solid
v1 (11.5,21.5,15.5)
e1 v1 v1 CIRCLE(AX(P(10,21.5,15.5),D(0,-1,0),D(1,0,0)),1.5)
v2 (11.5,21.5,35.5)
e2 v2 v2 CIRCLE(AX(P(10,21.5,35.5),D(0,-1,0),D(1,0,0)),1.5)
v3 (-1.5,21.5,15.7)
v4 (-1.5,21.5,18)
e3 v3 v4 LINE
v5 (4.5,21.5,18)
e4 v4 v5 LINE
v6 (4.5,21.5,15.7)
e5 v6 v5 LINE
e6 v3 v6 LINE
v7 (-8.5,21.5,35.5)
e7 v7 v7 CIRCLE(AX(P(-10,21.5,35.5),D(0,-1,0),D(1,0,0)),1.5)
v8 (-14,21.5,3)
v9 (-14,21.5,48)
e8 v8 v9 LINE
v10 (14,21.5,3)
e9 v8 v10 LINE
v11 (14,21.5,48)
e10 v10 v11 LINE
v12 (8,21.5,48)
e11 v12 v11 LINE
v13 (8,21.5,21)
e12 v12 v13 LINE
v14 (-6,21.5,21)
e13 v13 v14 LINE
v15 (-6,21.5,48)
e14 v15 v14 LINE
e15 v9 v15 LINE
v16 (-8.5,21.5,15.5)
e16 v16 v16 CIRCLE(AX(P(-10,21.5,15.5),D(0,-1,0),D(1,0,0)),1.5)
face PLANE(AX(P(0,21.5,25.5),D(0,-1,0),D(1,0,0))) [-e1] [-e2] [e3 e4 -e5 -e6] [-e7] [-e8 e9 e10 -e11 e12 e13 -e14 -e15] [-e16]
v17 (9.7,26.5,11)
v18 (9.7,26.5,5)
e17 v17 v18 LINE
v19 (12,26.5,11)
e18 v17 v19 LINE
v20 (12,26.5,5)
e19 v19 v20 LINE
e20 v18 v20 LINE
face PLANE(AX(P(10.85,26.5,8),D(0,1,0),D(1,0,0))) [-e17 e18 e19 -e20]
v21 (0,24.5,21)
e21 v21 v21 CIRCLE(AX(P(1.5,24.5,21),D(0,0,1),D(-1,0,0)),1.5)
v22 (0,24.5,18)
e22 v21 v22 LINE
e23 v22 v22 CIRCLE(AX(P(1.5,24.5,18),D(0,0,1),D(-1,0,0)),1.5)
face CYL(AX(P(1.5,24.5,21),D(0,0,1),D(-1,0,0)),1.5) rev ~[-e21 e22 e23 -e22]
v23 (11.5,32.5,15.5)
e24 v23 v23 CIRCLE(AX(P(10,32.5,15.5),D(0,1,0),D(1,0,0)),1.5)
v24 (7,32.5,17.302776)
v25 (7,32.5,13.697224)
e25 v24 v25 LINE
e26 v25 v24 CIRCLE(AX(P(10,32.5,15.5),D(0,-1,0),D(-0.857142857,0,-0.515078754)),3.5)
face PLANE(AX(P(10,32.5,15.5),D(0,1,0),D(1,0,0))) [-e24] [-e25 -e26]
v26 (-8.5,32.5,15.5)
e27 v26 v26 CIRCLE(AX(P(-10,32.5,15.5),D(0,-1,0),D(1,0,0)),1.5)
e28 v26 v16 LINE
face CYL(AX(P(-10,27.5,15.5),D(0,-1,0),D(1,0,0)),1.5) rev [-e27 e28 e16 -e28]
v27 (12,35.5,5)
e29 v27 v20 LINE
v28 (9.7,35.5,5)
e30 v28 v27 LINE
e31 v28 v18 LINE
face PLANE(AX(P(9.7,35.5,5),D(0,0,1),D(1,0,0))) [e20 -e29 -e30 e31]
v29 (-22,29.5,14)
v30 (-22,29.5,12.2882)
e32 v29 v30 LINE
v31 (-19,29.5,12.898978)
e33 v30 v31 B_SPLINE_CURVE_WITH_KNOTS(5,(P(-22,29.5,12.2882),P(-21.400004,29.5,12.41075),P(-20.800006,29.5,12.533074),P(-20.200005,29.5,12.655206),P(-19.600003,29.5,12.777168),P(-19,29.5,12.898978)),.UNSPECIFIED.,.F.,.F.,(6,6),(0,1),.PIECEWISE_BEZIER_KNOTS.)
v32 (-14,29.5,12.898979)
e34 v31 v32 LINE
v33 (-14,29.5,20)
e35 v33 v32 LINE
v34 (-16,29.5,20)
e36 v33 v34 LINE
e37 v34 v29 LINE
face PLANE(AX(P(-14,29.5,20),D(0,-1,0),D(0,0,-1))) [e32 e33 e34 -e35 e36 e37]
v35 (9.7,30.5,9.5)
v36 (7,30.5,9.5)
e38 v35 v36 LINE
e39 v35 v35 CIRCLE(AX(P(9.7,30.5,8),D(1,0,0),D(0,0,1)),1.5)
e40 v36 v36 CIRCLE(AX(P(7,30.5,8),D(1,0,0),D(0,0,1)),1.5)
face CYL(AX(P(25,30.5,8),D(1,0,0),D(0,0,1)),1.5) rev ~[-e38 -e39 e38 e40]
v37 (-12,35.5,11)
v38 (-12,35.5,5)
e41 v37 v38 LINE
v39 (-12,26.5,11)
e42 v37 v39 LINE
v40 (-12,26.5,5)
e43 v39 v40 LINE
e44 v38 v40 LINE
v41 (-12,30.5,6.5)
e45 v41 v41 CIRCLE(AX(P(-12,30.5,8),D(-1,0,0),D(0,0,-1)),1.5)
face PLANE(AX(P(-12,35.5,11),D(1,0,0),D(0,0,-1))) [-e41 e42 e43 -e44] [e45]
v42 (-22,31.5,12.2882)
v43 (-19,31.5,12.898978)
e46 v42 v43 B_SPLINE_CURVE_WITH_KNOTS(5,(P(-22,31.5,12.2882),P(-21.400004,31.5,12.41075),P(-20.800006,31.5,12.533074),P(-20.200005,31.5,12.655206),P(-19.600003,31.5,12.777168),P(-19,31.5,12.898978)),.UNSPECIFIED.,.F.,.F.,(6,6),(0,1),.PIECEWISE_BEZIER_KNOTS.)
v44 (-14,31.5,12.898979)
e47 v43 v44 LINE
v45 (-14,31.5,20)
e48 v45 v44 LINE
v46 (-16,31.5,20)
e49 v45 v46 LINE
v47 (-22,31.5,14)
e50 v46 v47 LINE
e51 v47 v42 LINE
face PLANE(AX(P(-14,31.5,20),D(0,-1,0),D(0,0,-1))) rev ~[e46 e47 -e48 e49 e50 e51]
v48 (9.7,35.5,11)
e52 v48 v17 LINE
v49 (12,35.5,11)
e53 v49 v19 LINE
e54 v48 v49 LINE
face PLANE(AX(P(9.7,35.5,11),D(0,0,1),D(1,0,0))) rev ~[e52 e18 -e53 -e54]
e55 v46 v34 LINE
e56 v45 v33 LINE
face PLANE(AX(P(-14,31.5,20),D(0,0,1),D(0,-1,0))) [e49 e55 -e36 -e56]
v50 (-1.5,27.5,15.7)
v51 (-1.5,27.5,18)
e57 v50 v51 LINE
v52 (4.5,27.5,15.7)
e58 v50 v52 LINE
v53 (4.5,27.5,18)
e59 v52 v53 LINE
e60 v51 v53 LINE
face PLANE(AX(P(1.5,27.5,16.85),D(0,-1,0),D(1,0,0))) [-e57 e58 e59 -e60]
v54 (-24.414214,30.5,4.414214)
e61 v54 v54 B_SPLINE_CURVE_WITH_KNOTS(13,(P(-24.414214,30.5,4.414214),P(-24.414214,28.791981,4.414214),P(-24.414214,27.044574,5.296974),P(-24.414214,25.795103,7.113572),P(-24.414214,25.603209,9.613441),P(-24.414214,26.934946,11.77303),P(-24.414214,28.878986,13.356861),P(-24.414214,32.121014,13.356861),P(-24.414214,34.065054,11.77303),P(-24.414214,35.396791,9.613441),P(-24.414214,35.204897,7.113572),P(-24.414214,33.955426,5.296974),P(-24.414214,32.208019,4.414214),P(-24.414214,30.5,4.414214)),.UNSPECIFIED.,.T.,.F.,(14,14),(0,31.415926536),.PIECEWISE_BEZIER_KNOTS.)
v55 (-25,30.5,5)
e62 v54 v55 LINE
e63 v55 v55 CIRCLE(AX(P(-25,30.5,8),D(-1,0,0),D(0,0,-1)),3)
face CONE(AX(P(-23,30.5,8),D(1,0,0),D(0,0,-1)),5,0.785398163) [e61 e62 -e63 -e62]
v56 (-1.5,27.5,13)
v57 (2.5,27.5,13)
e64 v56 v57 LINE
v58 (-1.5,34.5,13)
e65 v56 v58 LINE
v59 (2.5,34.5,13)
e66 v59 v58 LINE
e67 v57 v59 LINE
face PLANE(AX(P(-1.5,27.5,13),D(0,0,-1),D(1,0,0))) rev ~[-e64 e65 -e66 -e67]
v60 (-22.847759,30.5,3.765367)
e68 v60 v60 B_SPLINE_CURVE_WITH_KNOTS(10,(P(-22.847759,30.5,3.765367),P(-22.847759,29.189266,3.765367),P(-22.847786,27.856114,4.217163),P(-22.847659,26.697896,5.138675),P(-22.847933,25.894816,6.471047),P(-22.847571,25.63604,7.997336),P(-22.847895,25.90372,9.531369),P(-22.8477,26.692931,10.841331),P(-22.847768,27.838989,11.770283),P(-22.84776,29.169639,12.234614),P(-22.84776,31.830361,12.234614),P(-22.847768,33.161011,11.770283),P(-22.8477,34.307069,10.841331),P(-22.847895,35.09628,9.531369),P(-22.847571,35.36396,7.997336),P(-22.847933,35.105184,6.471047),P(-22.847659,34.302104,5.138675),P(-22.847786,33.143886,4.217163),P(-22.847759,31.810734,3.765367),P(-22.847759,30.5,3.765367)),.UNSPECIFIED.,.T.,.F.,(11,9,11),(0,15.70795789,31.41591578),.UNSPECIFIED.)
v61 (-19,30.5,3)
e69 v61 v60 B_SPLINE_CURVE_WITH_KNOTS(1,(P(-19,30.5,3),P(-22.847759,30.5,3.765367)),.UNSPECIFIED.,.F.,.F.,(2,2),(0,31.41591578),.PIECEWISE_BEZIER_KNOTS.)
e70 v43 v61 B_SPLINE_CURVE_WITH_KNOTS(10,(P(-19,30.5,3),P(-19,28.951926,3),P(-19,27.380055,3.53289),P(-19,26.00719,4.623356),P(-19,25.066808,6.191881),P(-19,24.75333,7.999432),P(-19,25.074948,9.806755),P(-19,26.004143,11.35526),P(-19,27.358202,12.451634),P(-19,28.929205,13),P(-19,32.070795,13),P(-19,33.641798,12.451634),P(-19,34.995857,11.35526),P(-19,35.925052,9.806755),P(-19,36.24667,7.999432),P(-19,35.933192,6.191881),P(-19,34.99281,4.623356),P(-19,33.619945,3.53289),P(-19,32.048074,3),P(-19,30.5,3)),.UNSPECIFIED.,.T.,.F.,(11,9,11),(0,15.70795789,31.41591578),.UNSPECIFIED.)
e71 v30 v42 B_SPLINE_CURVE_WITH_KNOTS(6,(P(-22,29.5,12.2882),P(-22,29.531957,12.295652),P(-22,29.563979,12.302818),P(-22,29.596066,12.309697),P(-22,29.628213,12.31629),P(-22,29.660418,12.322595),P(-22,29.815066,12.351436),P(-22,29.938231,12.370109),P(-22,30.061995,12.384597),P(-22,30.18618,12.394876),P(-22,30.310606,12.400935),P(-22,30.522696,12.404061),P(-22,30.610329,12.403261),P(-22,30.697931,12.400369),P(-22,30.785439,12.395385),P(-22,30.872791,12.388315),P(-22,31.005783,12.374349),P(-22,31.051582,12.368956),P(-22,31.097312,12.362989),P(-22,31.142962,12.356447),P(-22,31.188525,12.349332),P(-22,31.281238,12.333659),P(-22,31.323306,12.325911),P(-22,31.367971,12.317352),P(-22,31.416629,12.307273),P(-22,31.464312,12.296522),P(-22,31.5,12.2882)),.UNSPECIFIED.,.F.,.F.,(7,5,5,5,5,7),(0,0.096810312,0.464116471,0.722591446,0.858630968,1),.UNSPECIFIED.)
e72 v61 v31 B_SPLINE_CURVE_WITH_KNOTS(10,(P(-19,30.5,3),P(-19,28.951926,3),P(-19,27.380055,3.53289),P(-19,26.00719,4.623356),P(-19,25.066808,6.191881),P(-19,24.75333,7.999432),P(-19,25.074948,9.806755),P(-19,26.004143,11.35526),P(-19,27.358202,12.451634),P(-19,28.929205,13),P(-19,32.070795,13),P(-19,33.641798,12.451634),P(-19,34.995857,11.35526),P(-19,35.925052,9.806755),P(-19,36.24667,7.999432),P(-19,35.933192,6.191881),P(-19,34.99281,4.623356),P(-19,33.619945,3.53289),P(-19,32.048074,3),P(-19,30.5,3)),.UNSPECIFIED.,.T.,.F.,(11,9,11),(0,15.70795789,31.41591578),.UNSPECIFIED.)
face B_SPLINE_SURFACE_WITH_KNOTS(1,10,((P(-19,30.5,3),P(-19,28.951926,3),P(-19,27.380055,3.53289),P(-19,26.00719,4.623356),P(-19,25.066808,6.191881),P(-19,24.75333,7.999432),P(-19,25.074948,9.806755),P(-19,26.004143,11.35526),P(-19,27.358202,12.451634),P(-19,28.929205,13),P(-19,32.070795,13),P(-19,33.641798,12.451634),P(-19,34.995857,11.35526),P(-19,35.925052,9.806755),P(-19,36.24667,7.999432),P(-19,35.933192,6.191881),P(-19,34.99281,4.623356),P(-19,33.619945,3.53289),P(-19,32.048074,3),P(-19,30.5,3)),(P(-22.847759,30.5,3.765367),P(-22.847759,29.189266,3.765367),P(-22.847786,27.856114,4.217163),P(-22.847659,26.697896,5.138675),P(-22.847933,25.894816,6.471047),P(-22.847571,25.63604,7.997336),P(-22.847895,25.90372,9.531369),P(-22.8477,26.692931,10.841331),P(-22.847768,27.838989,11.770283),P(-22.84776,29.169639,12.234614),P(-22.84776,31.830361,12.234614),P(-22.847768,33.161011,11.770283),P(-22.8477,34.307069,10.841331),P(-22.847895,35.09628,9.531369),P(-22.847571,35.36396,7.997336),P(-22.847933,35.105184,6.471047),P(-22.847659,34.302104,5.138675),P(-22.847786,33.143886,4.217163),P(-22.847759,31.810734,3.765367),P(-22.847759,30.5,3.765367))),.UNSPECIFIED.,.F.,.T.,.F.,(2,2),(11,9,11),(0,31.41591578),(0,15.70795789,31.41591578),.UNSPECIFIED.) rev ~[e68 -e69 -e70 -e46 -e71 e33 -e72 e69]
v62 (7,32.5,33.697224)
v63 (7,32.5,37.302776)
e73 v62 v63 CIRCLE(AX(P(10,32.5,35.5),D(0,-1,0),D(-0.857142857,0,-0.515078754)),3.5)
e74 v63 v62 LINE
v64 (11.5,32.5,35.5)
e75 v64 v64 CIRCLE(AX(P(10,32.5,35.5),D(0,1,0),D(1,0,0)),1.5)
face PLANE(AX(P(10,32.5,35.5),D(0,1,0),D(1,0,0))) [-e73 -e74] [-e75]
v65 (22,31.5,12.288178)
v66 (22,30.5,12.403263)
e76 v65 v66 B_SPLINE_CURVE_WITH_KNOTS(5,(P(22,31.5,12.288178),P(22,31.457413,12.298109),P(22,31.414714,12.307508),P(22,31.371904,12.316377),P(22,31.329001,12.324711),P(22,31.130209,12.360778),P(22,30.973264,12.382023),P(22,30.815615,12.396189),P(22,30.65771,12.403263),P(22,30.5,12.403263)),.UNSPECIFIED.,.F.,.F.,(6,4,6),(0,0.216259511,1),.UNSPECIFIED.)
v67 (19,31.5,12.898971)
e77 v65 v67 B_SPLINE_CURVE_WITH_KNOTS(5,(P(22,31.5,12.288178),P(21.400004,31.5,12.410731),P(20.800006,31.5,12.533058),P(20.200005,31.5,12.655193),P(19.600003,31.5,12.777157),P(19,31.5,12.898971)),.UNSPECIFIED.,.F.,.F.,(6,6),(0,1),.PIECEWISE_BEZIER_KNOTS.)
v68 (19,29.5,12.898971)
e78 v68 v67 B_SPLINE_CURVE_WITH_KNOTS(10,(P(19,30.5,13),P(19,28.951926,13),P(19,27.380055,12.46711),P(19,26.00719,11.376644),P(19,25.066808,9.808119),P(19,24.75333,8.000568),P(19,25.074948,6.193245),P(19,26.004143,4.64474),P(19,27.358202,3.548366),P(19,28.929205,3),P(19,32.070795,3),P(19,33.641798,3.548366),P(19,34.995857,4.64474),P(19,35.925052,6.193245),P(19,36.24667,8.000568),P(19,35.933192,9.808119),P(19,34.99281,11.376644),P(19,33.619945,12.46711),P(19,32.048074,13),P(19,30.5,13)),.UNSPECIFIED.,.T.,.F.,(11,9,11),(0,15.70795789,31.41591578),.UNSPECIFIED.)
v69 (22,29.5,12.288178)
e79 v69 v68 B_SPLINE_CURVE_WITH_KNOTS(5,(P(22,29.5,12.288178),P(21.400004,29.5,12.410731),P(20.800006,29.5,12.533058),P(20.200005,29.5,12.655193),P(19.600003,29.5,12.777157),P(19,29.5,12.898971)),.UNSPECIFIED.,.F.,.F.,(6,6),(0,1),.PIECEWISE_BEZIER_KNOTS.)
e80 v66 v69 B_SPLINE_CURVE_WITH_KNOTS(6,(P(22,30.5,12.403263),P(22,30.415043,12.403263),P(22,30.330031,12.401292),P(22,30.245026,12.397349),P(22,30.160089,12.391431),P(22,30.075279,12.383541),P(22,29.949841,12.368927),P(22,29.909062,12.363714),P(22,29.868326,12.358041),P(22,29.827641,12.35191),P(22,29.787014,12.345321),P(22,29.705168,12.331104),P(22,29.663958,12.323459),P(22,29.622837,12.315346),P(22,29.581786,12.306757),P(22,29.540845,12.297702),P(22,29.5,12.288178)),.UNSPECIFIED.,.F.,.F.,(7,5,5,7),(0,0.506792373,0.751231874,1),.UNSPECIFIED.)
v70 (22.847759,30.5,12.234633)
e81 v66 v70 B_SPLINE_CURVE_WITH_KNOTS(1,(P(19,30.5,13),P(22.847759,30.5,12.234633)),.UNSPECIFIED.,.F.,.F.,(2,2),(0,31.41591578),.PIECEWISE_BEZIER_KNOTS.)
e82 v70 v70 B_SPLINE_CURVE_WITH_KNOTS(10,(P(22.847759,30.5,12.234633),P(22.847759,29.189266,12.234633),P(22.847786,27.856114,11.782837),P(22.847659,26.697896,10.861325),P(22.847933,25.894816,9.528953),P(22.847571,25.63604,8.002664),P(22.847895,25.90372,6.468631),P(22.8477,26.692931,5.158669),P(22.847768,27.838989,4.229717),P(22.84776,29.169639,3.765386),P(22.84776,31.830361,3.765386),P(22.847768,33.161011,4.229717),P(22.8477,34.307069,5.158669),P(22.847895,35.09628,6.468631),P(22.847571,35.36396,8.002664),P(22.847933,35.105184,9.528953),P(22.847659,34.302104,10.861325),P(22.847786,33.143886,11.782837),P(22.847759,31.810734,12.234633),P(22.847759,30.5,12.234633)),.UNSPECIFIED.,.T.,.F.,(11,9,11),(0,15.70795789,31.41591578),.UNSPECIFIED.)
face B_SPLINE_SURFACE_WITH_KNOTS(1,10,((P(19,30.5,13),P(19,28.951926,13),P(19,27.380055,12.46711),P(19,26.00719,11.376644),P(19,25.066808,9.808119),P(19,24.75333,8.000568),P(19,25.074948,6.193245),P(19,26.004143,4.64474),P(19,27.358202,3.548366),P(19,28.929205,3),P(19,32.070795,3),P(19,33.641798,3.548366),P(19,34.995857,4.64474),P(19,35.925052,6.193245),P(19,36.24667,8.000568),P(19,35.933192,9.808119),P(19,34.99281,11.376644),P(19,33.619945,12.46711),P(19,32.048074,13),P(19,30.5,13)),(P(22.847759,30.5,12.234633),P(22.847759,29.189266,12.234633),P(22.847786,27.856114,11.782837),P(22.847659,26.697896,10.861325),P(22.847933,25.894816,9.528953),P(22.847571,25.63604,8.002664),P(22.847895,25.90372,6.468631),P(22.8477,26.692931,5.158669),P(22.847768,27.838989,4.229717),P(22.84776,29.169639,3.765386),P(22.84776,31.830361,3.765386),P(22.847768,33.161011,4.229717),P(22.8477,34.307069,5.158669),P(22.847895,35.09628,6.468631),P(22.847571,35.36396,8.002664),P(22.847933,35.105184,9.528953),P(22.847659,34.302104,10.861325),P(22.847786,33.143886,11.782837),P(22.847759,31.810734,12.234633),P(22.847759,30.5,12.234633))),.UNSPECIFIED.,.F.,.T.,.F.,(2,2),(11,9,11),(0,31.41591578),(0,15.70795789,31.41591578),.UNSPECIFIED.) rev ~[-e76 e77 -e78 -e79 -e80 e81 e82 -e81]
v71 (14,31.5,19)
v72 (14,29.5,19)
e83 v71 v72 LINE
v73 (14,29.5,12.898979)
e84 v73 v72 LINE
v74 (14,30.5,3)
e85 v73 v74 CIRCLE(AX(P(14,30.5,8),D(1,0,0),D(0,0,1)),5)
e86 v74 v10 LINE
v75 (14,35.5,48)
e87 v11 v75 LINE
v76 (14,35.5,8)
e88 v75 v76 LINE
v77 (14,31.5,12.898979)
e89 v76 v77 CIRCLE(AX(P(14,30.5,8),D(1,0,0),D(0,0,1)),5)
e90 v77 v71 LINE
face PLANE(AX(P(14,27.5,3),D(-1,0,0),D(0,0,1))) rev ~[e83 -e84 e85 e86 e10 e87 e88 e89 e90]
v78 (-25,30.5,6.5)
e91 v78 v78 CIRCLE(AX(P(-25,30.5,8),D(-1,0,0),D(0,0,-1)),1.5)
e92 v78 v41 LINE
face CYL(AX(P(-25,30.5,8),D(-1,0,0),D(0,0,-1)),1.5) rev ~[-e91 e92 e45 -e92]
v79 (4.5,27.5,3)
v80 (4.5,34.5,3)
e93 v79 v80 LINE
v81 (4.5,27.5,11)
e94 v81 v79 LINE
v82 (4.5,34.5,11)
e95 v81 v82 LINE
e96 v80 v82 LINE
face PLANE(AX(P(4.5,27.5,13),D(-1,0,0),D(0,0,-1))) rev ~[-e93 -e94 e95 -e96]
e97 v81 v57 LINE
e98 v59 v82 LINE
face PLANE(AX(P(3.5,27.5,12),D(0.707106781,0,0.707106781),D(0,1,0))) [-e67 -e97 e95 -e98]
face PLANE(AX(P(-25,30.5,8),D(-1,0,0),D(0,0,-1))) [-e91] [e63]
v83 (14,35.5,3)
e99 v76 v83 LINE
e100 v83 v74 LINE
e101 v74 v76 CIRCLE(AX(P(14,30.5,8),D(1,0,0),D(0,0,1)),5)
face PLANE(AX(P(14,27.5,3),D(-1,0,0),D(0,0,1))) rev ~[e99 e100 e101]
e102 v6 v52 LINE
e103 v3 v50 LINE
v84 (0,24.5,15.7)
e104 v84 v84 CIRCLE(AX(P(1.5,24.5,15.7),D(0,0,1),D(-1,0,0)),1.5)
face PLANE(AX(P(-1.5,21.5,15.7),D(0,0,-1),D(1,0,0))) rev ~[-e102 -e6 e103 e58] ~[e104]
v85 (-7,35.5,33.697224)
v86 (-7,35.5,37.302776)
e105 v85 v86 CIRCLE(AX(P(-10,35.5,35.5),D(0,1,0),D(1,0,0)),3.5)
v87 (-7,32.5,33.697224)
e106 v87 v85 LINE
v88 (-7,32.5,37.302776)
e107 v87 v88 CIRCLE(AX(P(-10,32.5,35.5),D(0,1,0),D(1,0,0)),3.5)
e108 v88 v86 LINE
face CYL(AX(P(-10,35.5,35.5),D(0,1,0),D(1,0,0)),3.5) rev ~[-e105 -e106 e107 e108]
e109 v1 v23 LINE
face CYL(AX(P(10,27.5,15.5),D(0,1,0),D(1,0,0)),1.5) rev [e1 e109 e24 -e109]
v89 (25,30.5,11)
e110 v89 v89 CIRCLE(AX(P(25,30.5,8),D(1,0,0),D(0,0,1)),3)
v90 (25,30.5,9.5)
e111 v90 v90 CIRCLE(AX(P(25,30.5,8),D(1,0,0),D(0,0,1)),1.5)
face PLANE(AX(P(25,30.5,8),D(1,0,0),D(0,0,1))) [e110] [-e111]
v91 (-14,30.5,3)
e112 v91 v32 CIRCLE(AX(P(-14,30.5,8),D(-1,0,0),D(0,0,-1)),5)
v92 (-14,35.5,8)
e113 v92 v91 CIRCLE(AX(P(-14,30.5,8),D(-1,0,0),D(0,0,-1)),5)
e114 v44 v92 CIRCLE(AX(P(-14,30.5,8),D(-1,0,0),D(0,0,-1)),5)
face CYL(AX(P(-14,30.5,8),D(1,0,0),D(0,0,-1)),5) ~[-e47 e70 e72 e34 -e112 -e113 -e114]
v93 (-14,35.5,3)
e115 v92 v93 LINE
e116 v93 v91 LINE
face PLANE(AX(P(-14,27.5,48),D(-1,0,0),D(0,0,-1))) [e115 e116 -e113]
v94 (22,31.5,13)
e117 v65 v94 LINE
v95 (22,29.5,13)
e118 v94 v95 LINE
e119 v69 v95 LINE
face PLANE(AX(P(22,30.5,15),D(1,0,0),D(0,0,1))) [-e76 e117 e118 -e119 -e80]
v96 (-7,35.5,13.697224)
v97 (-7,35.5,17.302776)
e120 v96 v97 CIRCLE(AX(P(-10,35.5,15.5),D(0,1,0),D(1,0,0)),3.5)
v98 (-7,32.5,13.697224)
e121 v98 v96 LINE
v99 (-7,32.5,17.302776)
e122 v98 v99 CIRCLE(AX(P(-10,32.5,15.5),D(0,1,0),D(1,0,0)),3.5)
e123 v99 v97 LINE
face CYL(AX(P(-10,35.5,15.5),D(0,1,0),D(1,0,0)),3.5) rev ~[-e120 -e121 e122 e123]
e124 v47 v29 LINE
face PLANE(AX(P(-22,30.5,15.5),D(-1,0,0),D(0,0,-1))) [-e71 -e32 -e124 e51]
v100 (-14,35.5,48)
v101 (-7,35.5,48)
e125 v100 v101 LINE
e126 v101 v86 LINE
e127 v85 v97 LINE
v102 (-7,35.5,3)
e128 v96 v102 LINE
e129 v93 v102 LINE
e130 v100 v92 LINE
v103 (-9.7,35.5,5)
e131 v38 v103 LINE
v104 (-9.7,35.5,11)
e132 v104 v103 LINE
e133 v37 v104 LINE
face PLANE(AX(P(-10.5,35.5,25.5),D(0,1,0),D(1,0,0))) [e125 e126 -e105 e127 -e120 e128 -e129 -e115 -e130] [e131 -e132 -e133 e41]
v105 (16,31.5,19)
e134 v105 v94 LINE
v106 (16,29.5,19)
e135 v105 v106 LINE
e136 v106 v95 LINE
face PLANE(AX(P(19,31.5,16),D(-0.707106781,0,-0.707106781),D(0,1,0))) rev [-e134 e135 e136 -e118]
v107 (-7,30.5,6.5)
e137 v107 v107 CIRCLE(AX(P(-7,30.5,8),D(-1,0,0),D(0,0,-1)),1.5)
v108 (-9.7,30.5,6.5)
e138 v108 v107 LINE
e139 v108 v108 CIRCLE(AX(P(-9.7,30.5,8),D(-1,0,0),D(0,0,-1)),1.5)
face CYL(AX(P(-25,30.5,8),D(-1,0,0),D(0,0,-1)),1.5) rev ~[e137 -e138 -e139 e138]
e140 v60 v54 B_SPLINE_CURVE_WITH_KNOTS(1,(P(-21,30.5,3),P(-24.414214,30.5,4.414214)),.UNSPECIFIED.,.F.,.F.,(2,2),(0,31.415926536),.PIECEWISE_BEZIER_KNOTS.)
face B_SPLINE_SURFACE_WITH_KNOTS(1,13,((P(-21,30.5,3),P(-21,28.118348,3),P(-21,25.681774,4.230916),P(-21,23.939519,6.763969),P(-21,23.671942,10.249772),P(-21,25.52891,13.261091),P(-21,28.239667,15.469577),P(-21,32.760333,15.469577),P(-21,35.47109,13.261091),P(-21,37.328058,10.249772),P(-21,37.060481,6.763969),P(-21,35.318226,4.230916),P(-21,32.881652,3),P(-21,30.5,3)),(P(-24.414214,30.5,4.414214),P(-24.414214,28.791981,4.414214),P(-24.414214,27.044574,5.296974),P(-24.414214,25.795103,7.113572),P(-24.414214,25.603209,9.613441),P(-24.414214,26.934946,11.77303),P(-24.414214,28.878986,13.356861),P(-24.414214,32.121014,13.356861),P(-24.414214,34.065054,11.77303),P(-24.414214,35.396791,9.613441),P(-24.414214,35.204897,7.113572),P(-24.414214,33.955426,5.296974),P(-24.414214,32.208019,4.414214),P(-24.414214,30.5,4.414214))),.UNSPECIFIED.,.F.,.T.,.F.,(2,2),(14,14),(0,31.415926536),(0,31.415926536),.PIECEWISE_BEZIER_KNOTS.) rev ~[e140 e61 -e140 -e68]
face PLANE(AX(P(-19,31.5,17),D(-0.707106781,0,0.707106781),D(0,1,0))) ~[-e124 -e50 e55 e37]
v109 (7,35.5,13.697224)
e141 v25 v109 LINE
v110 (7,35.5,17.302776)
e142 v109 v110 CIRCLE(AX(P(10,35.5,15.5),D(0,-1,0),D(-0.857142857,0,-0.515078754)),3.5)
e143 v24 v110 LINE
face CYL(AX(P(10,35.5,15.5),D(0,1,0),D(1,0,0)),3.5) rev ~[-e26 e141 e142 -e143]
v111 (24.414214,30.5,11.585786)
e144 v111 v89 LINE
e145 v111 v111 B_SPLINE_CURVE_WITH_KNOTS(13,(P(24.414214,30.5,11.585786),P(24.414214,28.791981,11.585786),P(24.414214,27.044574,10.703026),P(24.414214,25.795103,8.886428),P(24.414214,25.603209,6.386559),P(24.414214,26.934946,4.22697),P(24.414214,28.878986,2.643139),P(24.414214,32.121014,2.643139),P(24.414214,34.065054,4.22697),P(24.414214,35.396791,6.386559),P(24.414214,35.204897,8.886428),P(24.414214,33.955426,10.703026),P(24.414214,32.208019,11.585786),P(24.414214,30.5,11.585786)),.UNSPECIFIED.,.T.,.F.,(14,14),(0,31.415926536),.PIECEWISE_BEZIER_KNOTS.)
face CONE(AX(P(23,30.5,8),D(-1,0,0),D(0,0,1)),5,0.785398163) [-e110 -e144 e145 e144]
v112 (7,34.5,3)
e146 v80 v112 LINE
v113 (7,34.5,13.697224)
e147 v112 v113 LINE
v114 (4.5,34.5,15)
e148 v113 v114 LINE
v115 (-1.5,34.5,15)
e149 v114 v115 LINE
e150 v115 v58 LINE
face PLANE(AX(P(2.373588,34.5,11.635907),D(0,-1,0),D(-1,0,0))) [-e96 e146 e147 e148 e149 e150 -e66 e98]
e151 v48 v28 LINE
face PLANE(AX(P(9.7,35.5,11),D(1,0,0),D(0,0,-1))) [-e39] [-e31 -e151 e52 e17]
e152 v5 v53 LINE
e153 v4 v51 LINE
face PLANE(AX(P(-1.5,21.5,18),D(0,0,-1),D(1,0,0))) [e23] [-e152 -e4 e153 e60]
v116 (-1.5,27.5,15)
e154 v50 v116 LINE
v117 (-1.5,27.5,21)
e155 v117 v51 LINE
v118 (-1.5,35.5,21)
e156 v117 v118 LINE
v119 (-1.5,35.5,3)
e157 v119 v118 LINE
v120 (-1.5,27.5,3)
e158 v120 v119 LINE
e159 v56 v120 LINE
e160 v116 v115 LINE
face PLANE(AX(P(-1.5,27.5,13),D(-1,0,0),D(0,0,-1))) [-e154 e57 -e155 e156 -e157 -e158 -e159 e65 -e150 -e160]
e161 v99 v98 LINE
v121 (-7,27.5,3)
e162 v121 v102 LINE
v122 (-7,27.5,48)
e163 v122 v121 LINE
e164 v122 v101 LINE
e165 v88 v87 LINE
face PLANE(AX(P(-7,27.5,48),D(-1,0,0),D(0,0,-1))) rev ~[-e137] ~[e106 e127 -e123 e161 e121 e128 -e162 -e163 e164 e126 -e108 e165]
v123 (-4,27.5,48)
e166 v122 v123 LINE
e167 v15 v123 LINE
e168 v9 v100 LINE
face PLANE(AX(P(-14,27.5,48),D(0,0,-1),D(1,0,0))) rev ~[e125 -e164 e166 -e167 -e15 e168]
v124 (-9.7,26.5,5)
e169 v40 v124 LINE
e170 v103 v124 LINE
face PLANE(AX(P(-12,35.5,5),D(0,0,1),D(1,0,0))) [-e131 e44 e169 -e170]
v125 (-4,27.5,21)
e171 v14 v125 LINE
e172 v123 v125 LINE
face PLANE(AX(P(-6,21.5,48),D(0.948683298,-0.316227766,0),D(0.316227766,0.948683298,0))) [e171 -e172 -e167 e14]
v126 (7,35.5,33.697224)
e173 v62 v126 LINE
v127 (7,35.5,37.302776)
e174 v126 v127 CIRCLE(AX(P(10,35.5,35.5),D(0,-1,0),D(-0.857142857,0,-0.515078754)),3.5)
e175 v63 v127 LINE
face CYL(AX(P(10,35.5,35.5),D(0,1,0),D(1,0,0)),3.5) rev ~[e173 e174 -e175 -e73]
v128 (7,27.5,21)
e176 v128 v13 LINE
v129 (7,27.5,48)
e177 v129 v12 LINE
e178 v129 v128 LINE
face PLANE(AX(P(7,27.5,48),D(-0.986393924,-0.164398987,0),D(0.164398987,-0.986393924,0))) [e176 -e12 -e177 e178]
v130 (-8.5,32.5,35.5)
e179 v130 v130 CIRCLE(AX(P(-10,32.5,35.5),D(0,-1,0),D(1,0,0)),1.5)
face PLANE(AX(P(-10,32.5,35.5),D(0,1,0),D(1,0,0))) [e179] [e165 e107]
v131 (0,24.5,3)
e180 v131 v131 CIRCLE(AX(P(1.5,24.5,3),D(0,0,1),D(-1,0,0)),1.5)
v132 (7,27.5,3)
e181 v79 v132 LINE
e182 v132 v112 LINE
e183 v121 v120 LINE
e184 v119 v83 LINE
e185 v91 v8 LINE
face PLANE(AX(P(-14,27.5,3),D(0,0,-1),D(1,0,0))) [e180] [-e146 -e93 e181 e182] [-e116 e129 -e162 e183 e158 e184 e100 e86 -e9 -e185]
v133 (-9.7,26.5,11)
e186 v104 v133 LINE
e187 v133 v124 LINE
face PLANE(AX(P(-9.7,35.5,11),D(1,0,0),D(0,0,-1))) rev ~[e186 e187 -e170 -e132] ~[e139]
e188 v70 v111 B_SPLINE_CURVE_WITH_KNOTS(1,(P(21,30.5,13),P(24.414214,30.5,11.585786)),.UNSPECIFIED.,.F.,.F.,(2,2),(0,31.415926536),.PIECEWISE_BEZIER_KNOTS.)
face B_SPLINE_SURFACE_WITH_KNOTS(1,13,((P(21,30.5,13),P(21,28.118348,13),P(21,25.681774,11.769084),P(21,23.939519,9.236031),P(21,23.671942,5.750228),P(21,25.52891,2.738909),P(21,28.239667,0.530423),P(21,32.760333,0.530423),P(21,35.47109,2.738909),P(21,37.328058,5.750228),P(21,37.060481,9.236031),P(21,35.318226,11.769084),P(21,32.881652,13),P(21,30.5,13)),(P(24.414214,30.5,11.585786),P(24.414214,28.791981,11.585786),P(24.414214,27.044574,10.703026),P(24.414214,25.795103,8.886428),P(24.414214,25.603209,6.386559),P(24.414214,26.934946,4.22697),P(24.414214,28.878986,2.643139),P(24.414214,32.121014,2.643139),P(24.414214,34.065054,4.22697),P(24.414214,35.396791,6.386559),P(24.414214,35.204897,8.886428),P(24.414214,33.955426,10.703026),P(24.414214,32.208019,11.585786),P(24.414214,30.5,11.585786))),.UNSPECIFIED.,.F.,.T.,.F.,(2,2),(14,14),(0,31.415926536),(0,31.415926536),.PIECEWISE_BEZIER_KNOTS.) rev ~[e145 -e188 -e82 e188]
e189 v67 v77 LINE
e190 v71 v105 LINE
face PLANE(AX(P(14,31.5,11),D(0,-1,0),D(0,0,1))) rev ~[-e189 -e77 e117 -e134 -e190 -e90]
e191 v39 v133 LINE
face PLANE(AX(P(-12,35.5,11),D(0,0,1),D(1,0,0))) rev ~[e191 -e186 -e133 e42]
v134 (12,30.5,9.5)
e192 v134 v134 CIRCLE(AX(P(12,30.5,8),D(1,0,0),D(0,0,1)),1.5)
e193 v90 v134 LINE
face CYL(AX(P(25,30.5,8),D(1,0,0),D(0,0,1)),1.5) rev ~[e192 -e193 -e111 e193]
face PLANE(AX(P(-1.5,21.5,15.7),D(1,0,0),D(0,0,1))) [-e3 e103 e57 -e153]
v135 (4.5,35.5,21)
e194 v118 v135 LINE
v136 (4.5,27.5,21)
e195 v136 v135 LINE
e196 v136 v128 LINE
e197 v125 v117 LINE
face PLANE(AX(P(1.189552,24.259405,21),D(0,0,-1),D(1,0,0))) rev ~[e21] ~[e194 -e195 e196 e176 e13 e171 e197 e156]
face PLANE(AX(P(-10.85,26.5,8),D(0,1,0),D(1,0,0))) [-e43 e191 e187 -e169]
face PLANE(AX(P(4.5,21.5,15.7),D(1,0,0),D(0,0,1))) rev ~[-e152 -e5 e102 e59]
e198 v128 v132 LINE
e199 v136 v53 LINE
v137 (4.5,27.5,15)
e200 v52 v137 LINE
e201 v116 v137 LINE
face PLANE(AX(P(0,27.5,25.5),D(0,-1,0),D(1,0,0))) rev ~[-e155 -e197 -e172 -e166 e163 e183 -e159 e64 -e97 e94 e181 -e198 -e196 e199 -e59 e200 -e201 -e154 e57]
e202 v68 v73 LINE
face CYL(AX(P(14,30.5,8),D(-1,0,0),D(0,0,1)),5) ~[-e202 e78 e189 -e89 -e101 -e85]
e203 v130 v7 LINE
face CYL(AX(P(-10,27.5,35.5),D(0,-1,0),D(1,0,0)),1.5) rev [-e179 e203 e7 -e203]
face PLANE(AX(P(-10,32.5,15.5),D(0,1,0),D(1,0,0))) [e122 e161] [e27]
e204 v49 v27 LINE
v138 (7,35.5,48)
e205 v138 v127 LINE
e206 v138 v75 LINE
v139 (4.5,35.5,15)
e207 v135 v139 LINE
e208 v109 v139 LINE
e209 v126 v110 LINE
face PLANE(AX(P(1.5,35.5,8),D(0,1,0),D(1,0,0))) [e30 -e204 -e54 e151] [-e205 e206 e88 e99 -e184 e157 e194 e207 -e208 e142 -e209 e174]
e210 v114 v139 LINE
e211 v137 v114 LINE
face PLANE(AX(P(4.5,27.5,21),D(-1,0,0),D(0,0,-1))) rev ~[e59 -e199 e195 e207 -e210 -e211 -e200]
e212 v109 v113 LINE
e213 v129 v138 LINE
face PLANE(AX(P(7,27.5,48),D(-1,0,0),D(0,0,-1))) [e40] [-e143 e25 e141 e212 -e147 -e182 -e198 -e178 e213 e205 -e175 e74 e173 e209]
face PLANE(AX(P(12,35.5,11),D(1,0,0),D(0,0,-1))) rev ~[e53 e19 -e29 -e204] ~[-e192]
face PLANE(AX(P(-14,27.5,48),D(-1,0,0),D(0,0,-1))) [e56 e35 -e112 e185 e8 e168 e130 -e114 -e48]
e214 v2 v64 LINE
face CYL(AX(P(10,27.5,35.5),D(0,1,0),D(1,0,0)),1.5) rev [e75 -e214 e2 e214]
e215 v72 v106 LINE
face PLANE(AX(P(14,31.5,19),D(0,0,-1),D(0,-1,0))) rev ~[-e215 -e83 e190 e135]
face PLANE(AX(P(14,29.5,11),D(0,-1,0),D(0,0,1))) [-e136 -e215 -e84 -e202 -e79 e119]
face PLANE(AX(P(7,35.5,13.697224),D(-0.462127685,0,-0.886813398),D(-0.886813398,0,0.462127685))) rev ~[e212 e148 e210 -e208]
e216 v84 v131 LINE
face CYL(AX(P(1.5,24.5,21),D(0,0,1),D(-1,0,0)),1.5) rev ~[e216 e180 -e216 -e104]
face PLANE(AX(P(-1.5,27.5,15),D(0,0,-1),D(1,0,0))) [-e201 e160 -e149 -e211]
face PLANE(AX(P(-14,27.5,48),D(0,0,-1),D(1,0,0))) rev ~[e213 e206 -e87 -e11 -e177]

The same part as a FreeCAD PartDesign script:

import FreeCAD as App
import Part
import Sketcher
Q = App.Units.Quantity


def edges_at(feature, points):
    """Names of the edges that pass closest to the given points."""
    edges = feature.Shape.Edges
    near = lambda p: min(range(len(edges)), key=lambda i: edges[i].distToShape(Part.Vertex(*p))[0])
    return sorted({f"Edge{near(p) + 1}" for p in points})


def add_polygon(sketch, points):
    """Adds a closed chain of lines whose ends are joined by coincident constraints."""
    first, n = sketch.GeometryCount, len(points)
    for a, b in zip(points, points[1:] + points[:1]):
        sketch.addGeometry(Part.LineSegment(App.Vector(*a, 0), App.Vector(*b, 0)), False)
    for i in range(n):
        sketch.addConstraint(Sketcher.Constraint("Coincident", first + i, 2, first + (i + 1) % n, 1))

doc = App.newDocument("Part")
body = doc.addObject("PartDesign::Body", "Body")

sketch1 = doc.addObject("Sketcher::SketchObject", "Sketch")
body.addObject(sketch1)
sketch1.AttachmentSupport = (doc.XZ_Plane, [""])
sketch1.MapMode = "FlatFace"
add_polygon(sketch1, [(0, 45), (0, 0), (28, 0), (28, 45)])
sketch1.addGeometry(Part.Circle(App.Vector(4, 12.5, 0), App.Vector(0, 0, 1), 1.5), False)
sketch1.addGeometry(Part.Circle(App.Vector(24, 12.5, 0), App.Vector(0, 0, 1), 1.5), False)
sketch1.addGeometry(Part.Circle(App.Vector(4, 32.5, 0), App.Vector(0, 0, 1), 1.5), False)
sketch1.addGeometry(Part.Circle(App.Vector(24, 32.5, 0), App.Vector(0, 0, 1), 1.5), False)
sketch1.addConstraint(Sketcher.Constraint("Vertical", 0))
sketch1.addConstraint(Sketcher.Constraint("Horizontal", 1))
sketch1.addConstraint(Sketcher.Constraint("Vertical", 2))
sketch1.addConstraint(Sketcher.Constraint("Horizontal", 3))
sketch1.addConstraint(Sketcher.Constraint("Coincident", 0, 2, -1, 1))
sketch1.addConstraint(Sketcher.Constraint("Equal", 4, 5))
sketch1.addConstraint(Sketcher.Constraint("Equal", 5, 6))
sketch1.addConstraint(Sketcher.Constraint("Equal", 6, 7))
sketch1.addConstraint(Sketcher.Constraint("Horizontal", 4, 3, 5, 3))
sketch1.addConstraint(Sketcher.Constraint("Horizontal", 6, 3, 7, 3))
sketch1.addConstraint(Sketcher.Constraint("Vertical", 4, 3, 6, 3))
sketch1.addConstraint(Sketcher.Constraint("Vertical", 5, 3, 7, 3))
sketch1.addConstraint(Sketcher.Constraint("Diameter", 4, Q("3 mm")))
sketch1.addConstraint(Sketcher.Constraint("DistanceX", 1, 1, 1, 2, Q("28 mm")))
sketch1.addConstraint(Sketcher.Constraint("DistanceY", 0, 2, 0, 1, Q("45 mm")))
sketch1.addConstraint(Sketcher.Constraint("DistanceX", -1, 1, 4, 3, Q("4 mm")))
sketch1.addConstraint(Sketcher.Constraint("DistanceX", -1, 1, 5, 3, Q("24 mm")))
sketch1.addConstraint(Sketcher.Constraint("DistanceY", 4, 3, 6, 3, Q("20 mm")))
sketch1.addConstraint(Sketcher.Constraint("DistanceY", -1, 1, 4, 3, Q("12.5 mm")))
pad1 = doc.addObject("PartDesign::Pad", "Pad")
body.addObject(pad1)
pad1.Profile = sketch1
pad1.Length = 6

sketch2 = doc.addObject("Sketcher::SketchObject", "Sketch001")
body.addObject(sketch2)
sketch2.AttachmentSupport = (doc.XZ_Plane, [""])
sketch2.MapMode = "FlatFace"
add_polygon(sketch2, [(0, 0), (0, 45), (7, 45), (7, 0)])
sketch2.addGeometry(Part.Circle(App.Vector(4, 32.5, 0), App.Vector(0, 0, 1), 1.5), False)
sketch2.addGeometry(Part.Circle(App.Vector(4, 12.5, 0), App.Vector(0, 0, 1), 1.5), False)
add_polygon(sketch2, [(21, 0), (21, 45), (28, 45), (28, 0)])
sketch2.addGeometry(Part.Circle(App.Vector(24, 32.5, 0), App.Vector(0, 0, 1), 1.5), False)
sketch2.addGeometry(Part.Circle(App.Vector(24, 12.5, 0), App.Vector(0, 0, 1), 1.5), False)
add_polygon(sketch2, [(12.5, 0), (12.5, 10), (18.5, 10), (18.5, 0)])
add_polygon(sketch2, [(12.5, 12), (12.5, 18), (18.5, 18), (18.5, 12)])
sketch2.addConstraint(Sketcher.Constraint("Vertical", 0))
sketch2.addConstraint(Sketcher.Constraint("Horizontal", 1))
sketch2.addConstraint(Sketcher.Constraint("Vertical", 2))
sketch2.addConstraint(Sketcher.Constraint("Horizontal", 3))
sketch2.addConstraint(Sketcher.Constraint("Vertical", 6))
sketch2.addConstraint(Sketcher.Constraint("Horizontal", 7))
sketch2.addConstraint(Sketcher.Constraint("Vertical", 8))
sketch2.addConstraint(Sketcher.Constraint("Horizontal", 9))
sketch2.addConstraint(Sketcher.Constraint("Vertical", 12))
sketch2.addConstraint(Sketcher.Constraint("Horizontal", 13))
sketch2.addConstraint(Sketcher.Constraint("Vertical", 14))
sketch2.addConstraint(Sketcher.Constraint("Horizontal", 15))
sketch2.addConstraint(Sketcher.Constraint("Vertical", 16))
sketch2.addConstraint(Sketcher.Constraint("Horizontal", 17))
sketch2.addConstraint(Sketcher.Constraint("Vertical", 18))
sketch2.addConstraint(Sketcher.Constraint("Horizontal", 19))
sketch2.addConstraint(Sketcher.Constraint("Coincident", 3, 2, -1, 1))
sketch2.addConstraint(Sketcher.Constraint("Equal", 4, 5))
sketch2.addConstraint(Sketcher.Constraint("Equal", 5, 10))
sketch2.addConstraint(Sketcher.Constraint("Equal", 10, 11))
sketch2.addConstraint(Sketcher.Constraint("PointOnObject", 8, 2, -1))
sketch2.addConstraint(Sketcher.Constraint("PointOnObject", 14, 2, -1))
sketch2.addConstraint(Sketcher.Constraint("Horizontal", 4, 3, 10, 3))
sketch2.addConstraint(Sketcher.Constraint("Horizontal", 5, 3, 11, 3))
sketch2.addConstraint(Sketcher.Constraint("Horizontal", 1, 2, 6, 2))
sketch2.addConstraint(Sketcher.Constraint("Vertical", 4, 3, 5, 3))
sketch2.addConstraint(Sketcher.Constraint("Vertical", 10, 3, 11, 3))
sketch2.addConstraint(Sketcher.Constraint("Vertical", 15, 2, 16, 2))
sketch2.addConstraint(Sketcher.Constraint("Vertical", 14, 2, 17, 2))
sketch2.addConstraint(Sketcher.Constraint("Equal", 3, 7))
sketch2.addConstraint(Sketcher.Constraint("Equal", 19, 16))
sketch2.addConstraint(Sketcher.Constraint("Diameter", 4, Q("3 mm")))
sketch2.addConstraint(Sketcher.Constraint("DistanceX", 1, 1, 1, 2, Q("7 mm")))
sketch2.addConstraint(Sketcher.Constraint("DistanceX", 13, 1, 13, 2, Q("6 mm")))
sketch2.addConstraint(Sketcher.Constraint("DistanceY", 0, 1, 0, 2, Q("45 mm")))
sketch2.addConstraint(Sketcher.Constraint("DistanceY", 12, 1, 12, 2, Q("10 mm")))
sketch2.addConstraint(Sketcher.Constraint("DistanceX", -1, 1, 4, 3, Q("4 mm")))
sketch2.addConstraint(Sketcher.Constraint("DistanceX", -1, 1, 10, 3, Q("24 mm")))
sketch2.addConstraint(Sketcher.Constraint("DistanceX", -1, 1, 6, 2, Q("21 mm")))
sketch2.addConstraint(Sketcher.Constraint("DistanceY", -1, 1, 16, 2, Q("18 mm")))
sketch2.addConstraint(Sketcher.Constraint("DistanceY", 5, 3, 4, 3, Q("20 mm")))
sketch2.addConstraint(Sketcher.Constraint("DistanceY", -1, 1, 4, 3, Q("32.5 mm")))
sketch2.addConstraint(Sketcher.Constraint("DistanceX", -1, 1, 12, 2, Q("12.5 mm")))
pad2 = doc.addObject("PartDesign::Pad", "Pad001")
body.addObject(pad2)
pad2.Profile = sketch2
pad2.Length = 8
pad2.Reversed = True

sketch3 = doc.addObject("Sketcher::SketchObject", "Sketch002")
body.addObject(sketch3)
sketch3.AttachmentSupport = (doc.XZ_Plane, [""])
sketch3.MapMode = "FlatFace"
sketch3.AttachmentOffset = App.Placement(App.Vector(0, 0, -8), App.Rotation())
sketch3.addGeometry(Part.Circle(App.Vector(4, 12.5, 0), App.Vector(0, 0, 1), 3.5), False)
sketch3.addGeometry(Part.Circle(App.Vector(4, 32.5, 0), App.Vector(0, 0, 1), 3.5), False)
sketch3.addGeometry(Part.Circle(App.Vector(24, 32.5, 0), App.Vector(0, 0, 1), 3.5), False)
sketch3.addGeometry(Part.Circle(App.Vector(24, 12.5, 0), App.Vector(0, 0, 1), 3.5), False)
sketch3.addConstraint(Sketcher.Constraint("Equal", 0, 1))
sketch3.addConstraint(Sketcher.Constraint("Equal", 1, 2))
sketch3.addConstraint(Sketcher.Constraint("Equal", 2, 3))
sketch3.addConstraint(Sketcher.Constraint("Horizontal", 1, 3, 2, 3))
sketch3.addConstraint(Sketcher.Constraint("Horizontal", 0, 3, 3, 3))
sketch3.addConstraint(Sketcher.Constraint("Vertical", 0, 3, 1, 3))
sketch3.addConstraint(Sketcher.Constraint("Vertical", 2, 3, 3, 3))
sketch3.addConstraint(Sketcher.Constraint("Diameter", 0, Q("7 mm")))
sketch3.addConstraint(Sketcher.Constraint("DistanceX", -1, 1, 0, 3, Q("4 mm")))
sketch3.addConstraint(Sketcher.Constraint("DistanceX", -1, 1, 2, 3, Q("24 mm")))
sketch3.addConstraint(Sketcher.Constraint("DistanceY", 0, 3, 1, 3, Q("20 mm")))
sketch3.addConstraint(Sketcher.Constraint("DistanceY", -1, 1, 0, 3, Q("12.5 mm")))
pocket1 = doc.addObject("PartDesign::Pocket", "Pocket")
body.addObject(pocket1)
pocket1.Profile = sketch3
pocket1.Length = 3
pocket1.Reversed = True

sketch4 = doc.addObject("Sketcher::SketchObject", "Sketch003")
body.addObject(sketch4)
sketch4.AttachmentSupport = (doc.XY_Plane, [""])
sketch4.MapMode = "FlatFace"
sketch4.AttachmentOffset = App.Placement(App.Vector(0, 0, 45), App.Rotation())
add_polygon(sketch4, [(8, -6), (22, -6), (21, 0), (10, 0)])
sketch4.addConstraint(Sketcher.Constraint("Horizontal", 0))
sketch4.addConstraint(Sketcher.Constraint("Horizontal", 2))
sketch4.addConstraint(Sketcher.Constraint("PointOnObject", 1, 2, -1))
sketch4.addConstraint(Sketcher.Constraint("DistanceX", 0, 1, 0, 2, Q("14 mm")))
sketch4.addConstraint(Sketcher.Constraint("DistanceX", 2, 2, 2, 1, Q("11 mm")))
sketch4.addConstraint(Sketcher.Constraint("DistanceX", -1, 1, 0, 2, Q("22 mm")))
sketch4.addConstraint(Sketcher.Constraint("DistanceY", 0, 2, -1, 1, Q("6 mm")))
sketch4.addConstraint(Sketcher.Constraint("DistanceX", -1, 1, 1, 2, Q("21 mm")))
pocket2 = doc.addObject("PartDesign::Pocket", "Pocket001")
body.addObject(pocket2)
pocket2.Profile = sketch4
pocket2.Length = 27

sketch5 = doc.addObject("Sketcher::SketchObject", "Sketch004")
body.addObject(sketch5)
sketch5.AttachmentSupport = (doc.XY_Plane, [""])
sketch5.MapMode = "FlatFace"
sketch5.AttachmentOffset = App.Placement(App.Vector(0, 0, 18), App.Rotation())
sketch5.addGeometry(Part.Circle(App.Vector(15.5, -3, 0), App.Vector(0, 0, 1), 1.5), False)
sketch5.addConstraint(Sketcher.Constraint("Diameter", 0, Q("3 mm")))
sketch5.addConstraint(Sketcher.Constraint("DistanceY", 0, 3, -1, 1, Q("3 mm")))
sketch5.addConstraint(Sketcher.Constraint("DistanceX", -1, 1, 0, 3, Q("15.5 mm")))
pocket3 = doc.addObject("PartDesign::Pocket", "Pocket002")
body.addObject(pocket3)
pocket3.Profile = sketch5
pocket3.Length = 19

sketch6 = doc.addObject("Sketcher::SketchObject", "Sketch005")
body.addObject(sketch6)
sketch6.AttachmentSupport = (doc.YZ_Plane, [""])
sketch6.MapMode = "FlatFace"
sketch6.addGeometry(Part.Circle(App.Vector(3, 5, 0), App.Vector(0, 0, 1), 5), False)
sketch6.addConstraint(Sketcher.Constraint("Diameter", 0, Q("10 mm")))
sketch6.addConstraint(Sketcher.Constraint("DistanceX", -1, 1, 0, 3, Q("3 mm")))
sketch6.addConstraint(Sketcher.Constraint("DistanceY", -1, 1, 0, 3, Q("5 mm")))
pad3 = doc.addObject("PartDesign::Pad", "Pad002")
body.addObject(pad3)
pad3.Profile = sketch6
pad3.Length = 11
pad3.Reversed = True

sketch7 = doc.addObject("Sketcher::SketchObject", "Sketch006")
body.addObject(sketch7)
sketch7.AttachmentSupport = (doc.YZ_Plane, [""])
sketch7.MapMode = "FlatFace"
sketch7.AttachmentOffset = App.Placement(App.Vector(0, 0, 28), App.Rotation())
sketch7.addGeometry(Part.Circle(App.Vector(3, 5, 0), App.Vector(0, 0, 1), 5), False)
sketch7.addConstraint(Sketcher.Constraint("Diameter", 0, Q("10 mm")))
sketch7.addConstraint(Sketcher.Constraint("DistanceX", -1, 1, 0, 3, Q("3 mm")))
sketch7.addConstraint(Sketcher.Constraint("DistanceY", -1, 1, 0, 3, Q("5 mm")))
pad4 = doc.addObject("PartDesign::Pad", "Pad003")
body.addObject(pad4)
pad4.Profile = sketch7
pad4.Length = 11

sketch8 = doc.addObject("Sketcher::SketchObject", "Sketch007")
body.addObject(sketch8)
sketch8.AttachmentSupport = (doc.YZ_Plane, [""])
sketch8.MapMode = "FlatFace"
sketch8.AttachmentOffset = App.Placement(App.Vector(0, 0, -11), App.Rotation())
sketch8.addGeometry(Part.Circle(App.Vector(3, 5, 0), App.Vector(0, 0, 1), 1.5), False)
sketch8.addConstraint(Sketcher.Constraint("Diameter", 0, Q("3 mm")))
sketch8.addConstraint(Sketcher.Constraint("DistanceX", -1, 1, 0, 3, Q("3 mm")))
sketch8.addConstraint(Sketcher.Constraint("DistanceY", -1, 1, 0, 3, Q("5 mm")))
pocket4 = doc.addObject("PartDesign::Pocket", "Pocket003")
body.addObject(pocket4)
pocket4.Profile = sketch8
pocket4.Length = 20
pocket4.Reversed = True

sketch9 = doc.addObject("Sketcher::SketchObject", "Sketch008")
body.addObject(sketch9)
sketch9.AttachmentSupport = (doc.YZ_Plane, [""])
sketch9.MapMode = "FlatFace"
sketch9.AttachmentOffset = App.Placement(App.Vector(0, 0, 39), App.Rotation())
sketch9.addGeometry(Part.Circle(App.Vector(3, 5, 0), App.Vector(0, 0, 1), 1.5), False)
sketch9.addConstraint(Sketcher.Constraint("Diameter", 0, Q("3 mm")))
sketch9.addConstraint(Sketcher.Constraint("DistanceX", -1, 1, 0, 3, Q("3 mm")))
sketch9.addConstraint(Sketcher.Constraint("DistanceY", -1, 1, 0, 3, Q("5 mm")))
pocket5 = doc.addObject("PartDesign::Pocket", "Pocket004")
body.addObject(pocket5)
pocket5.Profile = sketch9
pocket5.Length = 20
doc.recompute()

chamfer = doc.addObject("PartDesign::Chamfer", "Chamfer")
body.addObject(chamfer)
chamfer.Base = (pocket5, edges_at(pocket5, [(39, 3, 0), (-11, 3, 10)]))
chamfer.Size = 2
doc.recompute()

chamfer2 = doc.addObject("PartDesign::Chamfer", "Chamfer001")
body.addObject(chamfer2)
chamfer2.Base = (chamfer, edges_at(chamfer, [(37, 3, 0), (-9, 3, 10)]))
chamfer2.Size = 2
doc.recompute()

chamfer3 = doc.addObject("PartDesign::Chamfer", "Chamfer002")
body.addObject(chamfer3)
chamfer3.Base = (chamfer2, edges_at(chamfer2, [(35, 3, 0), (-7, 3, 10)]))
chamfer3.Size = 2

sketch10 = doc.addObject("Sketcher::SketchObject", "Sketch009")
body.addObject(sketch10)
sketch10.AttachmentSupport = (doc.YZ_Plane, [""])
sketch10.MapMode = "FlatFace"
add_polygon(sketch10, [(2, 17), (4, 17), (4, 8), (2, 8)])
sketch10.addConstraint(Sketcher.Constraint("Horizontal", 0))
sketch10.addConstraint(Sketcher.Constraint("Vertical", 1))
sketch10.addConstraint(Sketcher.Constraint("Horizontal", 2))
sketch10.addConstraint(Sketcher.Constraint("Vertical", 3))
sketch10.addConstraint(Sketcher.Constraint("DistanceX", 0, 1, 0, 2, Q("2 mm")))
sketch10.addConstraint(Sketcher.Constraint("DistanceY", 1, 2, 1, 1, Q("9 mm")))
sketch10.addConstraint(Sketcher.Constraint("DistanceX", -1, 1, 0, 2, Q("4 mm")))
sketch10.addConstraint(Sketcher.Constraint("DistanceY", -1, 1, 0, 2, Q("17 mm")))
pad5 = doc.addObject("PartDesign::Pad", "Pad004")
body.addObject(pad5)
pad5.Profile = sketch10
pad5.Length = 8
pad5.Reversed = True

sketch11 = doc.addObject("Sketcher::SketchObject", "Sketch010")
body.addObject(sketch11)
sketch11.AttachmentSupport = (doc.YZ_Plane, [""])
sketch11.MapMode = "FlatFace"
sketch11.AttachmentOffset = App.Placement(App.Vector(0, 0, 28), App.Rotation())
add_polygon(sketch11, [(2, 8), (4, 8), (4, 16), (2, 16)])
sketch11.addConstraint(Sketcher.Constraint("Horizontal", 0))
sketch11.addConstraint(Sketcher.Constraint("Vertical", 1))
sketch11.addConstraint(Sketcher.Constraint("Horizontal", 2))
sketch11.addConstraint(Sketcher.Constraint("Vertical", 3))
sketch11.addConstraint(Sketcher.Constraint("DistanceX", 0, 1, 0, 2, Q("2 mm")))
sketch11.addConstraint(Sketcher.Constraint("DistanceY", 1, 1, 1, 2, Q("8 mm")))
sketch11.addConstraint(Sketcher.Constraint("DistanceX", -1, 1, 0, 2, Q("4 mm")))
sketch11.addConstraint(Sketcher.Constraint("DistanceY", -1, 1, 0, 2, Q("8 mm")))
pad6 = doc.addObject("PartDesign::Pad", "Pad005")
body.addObject(pad6)
pad6.Profile = sketch11
pad6.Length = 8
doc.recompute()

chamfer4 = doc.addObject("PartDesign::Chamfer", "Chamfer003")
body.addObject(chamfer4)
chamfer4.Base = (pad6, edges_at(pad6, [(-8, 3, 17), (36, 3, 16)]))
chamfer4.Size = 6

sketch12 = doc.addObject("Sketcher::SketchObject", "Sketch011")
body.addObject(sketch12)
sketch12.AttachmentSupport = (doc.XZ_Plane, [""])
sketch12.MapMode = "FlatFace"
sketch12.AttachmentOffset = App.Placement(App.Vector(0, 0, 6), App.Rotation())
add_polygon(sketch12, [(12.5, 15), (12.5, 12.7), (18.5, 12.7), (18.5, 15)])
sketch12.addConstraint(Sketcher.Constraint("Vertical", 0))
sketch12.addConstraint(Sketcher.Constraint("Horizontal", 1))
sketch12.addConstraint(Sketcher.Constraint("Vertical", 2))
sketch12.addConstraint(Sketcher.Constraint("Horizontal", 3))
sketch12.addConstraint(Sketcher.Constraint("DistanceX", 1, 1, 1, 2, Q("6 mm")))
sketch12.addConstraint(Sketcher.Constraint("DistanceY", 0, 2, 0, 1, Q("2.3 mm")))
sketch12.addConstraint(Sketcher.Constraint("DistanceY", -1, 1, 2, 2, Q("15 mm")))
sketch12.addConstraint(Sketcher.Constraint("DistanceX", -1, 1, 0, 2, Q("12.5 mm")))
pocket6 = doc.addObject("PartDesign::Pocket", "Pocket005")
body.addObject(pocket6)
pocket6.Profile = sketch12
pocket6.Length = 6
doc.recompute()

chamfer5 = doc.addObject("PartDesign::Chamfer", "Chamfer004")
body.addObject(chamfer5)
chamfer5.Base = (pocket6, edges_at(pocket6, [(18.5, 4, 10)]))
chamfer5.Size = 2

sketch13 = doc.addObject("Sketcher::SketchObject", "Sketch012")
body.addObject(sketch13)
sketch13.AttachmentSupport = (doc.XZ_Plane, [""])
sketch13.MapMode = "FlatFace"
sketch13.AttachmentOffset = App.Placement(App.Vector(0, 0, -8), App.Rotation())
add_polygon(sketch13, [(21, 0), (12.5, 0), (12.5, 18), (18.5, 18), (18.5, 12), (21, 10.697224)])
sketch13.addConstraint(Sketcher.Constraint("Horizontal", 0))
sketch13.addConstraint(Sketcher.Constraint("Vertical", 1))
sketch13.addConstraint(Sketcher.Constraint("Horizontal", 2))
sketch13.addConstraint(Sketcher.Constraint("Vertical", 3))
sketch13.addConstraint(Sketcher.Constraint("Vertical", 5))
sketch13.addConstraint(Sketcher.Constraint("PointOnObject", 0, 2, -1))
sketch13.addConstraint(Sketcher.Constraint("Equal", 2, 3))
sketch13.addConstraint(Sketcher.Constraint("DistanceX", 2, 1, 2, 2, Q("6 mm")))
sketch13.addConstraint(Sketcher.Constraint("DistanceY", 1, 1, 1, 2, Q("18 mm")))
sketch13.addConstraint(Sketcher.Constraint("DistanceX", 0, 2, 0, 1, Q("8.5 mm")))
sketch13.addConstraint(Sketcher.Constraint("DistanceX", -1, 1, 4, 2, Q("21 mm")))
sketch13.addConstraint(Sketcher.Constraint("DistanceY", 5, 2, 5, 1, Q("10.697224 mm")))
pad7 = doc.addObject("PartDesign::Pad", "Pad006")
body.addObject(pad7)
pad7.Profile = sketch13
pad7.Length = 1

sketch14 = doc.addObject("Sketcher::SketchObject", "Sketch013")
body.addObject(sketch14)
sketch14.AttachmentSupport = (doc.XZ_Plane, [""])
sketch14.MapMode = "FlatFace"
sketch14.AttachmentOffset = App.Placement(App.Vector(0, 0, -8), App.Rotation())
add_polygon(sketch14, [(2, 2), (2, 8), (4.3, 8), (4.3, 2)])
add_polygon(sketch14, [(23.7, 2), (23.7, 8), (26, 8), (26, 2)])
sketch14.addConstraint(Sketcher.Constraint("Vertical", 0))
sketch14.addConstraint(Sketcher.Constraint("Horizontal", 1))
sketch14.addConstraint(Sketcher.Constraint("Vertical", 2))
sketch14.addConstraint(Sketcher.Constraint("Horizontal", 3))
sketch14.addConstraint(Sketcher.Constraint("Vertical", 4))
sketch14.addConstraint(Sketcher.Constraint("Horizontal", 5))
sketch14.addConstraint(Sketcher.Constraint("Vertical", 6))
sketch14.addConstraint(Sketcher.Constraint("Horizontal", 7))
sketch14.addConstraint(Sketcher.Constraint("Horizontal", 1, 2, 4, 2))
sketch14.addConstraint(Sketcher.Constraint("Horizontal", 3, 2, 6, 2))
sketch14.addConstraint(Sketcher.Constraint("Equal", 3, 5))
sketch14.addConstraint(Sketcher.Constraint("DistanceY", 0, 1, 0, 2, Q("6 mm")))
sketch14.addConstraint(Sketcher.Constraint("DistanceX", 1, 1, 1, 2, Q("2.3 mm")))
sketch14.addConstraint(Sketcher.Constraint("DistanceX", -1, 1, 0, 2, Q("2 mm")))
sketch14.addConstraint(Sketcher.Constraint("DistanceY", -1, 1, 0, 2, Q("8 mm")))
sketch14.addConstraint(Sketcher.Constraint("DistanceX", -1, 1, 5, 2, Q("26 mm")))
pocket7 = doc.addObject("PartDesign::Pocket", "Pocket006")
body.addObject(pocket7)
pocket7.Profile = sketch14
pocket7.Length = 9
pocket7.Reversed = True
body2 = doc.addObject("PartDesign::Body", "Body001")
doc.recompute()

body.Placement = App.Placement(App.Vector(-14, 27.5, 3), App.Rotation(App.Vector(0, 0, 1), 0))
boolean = doc.addObject("PartDesign::Boolean", "Boolean")
body2.addObject(boolean)
boolean.Type = "Fuse"
boolean.addObjects([body])

doc.recompute()
